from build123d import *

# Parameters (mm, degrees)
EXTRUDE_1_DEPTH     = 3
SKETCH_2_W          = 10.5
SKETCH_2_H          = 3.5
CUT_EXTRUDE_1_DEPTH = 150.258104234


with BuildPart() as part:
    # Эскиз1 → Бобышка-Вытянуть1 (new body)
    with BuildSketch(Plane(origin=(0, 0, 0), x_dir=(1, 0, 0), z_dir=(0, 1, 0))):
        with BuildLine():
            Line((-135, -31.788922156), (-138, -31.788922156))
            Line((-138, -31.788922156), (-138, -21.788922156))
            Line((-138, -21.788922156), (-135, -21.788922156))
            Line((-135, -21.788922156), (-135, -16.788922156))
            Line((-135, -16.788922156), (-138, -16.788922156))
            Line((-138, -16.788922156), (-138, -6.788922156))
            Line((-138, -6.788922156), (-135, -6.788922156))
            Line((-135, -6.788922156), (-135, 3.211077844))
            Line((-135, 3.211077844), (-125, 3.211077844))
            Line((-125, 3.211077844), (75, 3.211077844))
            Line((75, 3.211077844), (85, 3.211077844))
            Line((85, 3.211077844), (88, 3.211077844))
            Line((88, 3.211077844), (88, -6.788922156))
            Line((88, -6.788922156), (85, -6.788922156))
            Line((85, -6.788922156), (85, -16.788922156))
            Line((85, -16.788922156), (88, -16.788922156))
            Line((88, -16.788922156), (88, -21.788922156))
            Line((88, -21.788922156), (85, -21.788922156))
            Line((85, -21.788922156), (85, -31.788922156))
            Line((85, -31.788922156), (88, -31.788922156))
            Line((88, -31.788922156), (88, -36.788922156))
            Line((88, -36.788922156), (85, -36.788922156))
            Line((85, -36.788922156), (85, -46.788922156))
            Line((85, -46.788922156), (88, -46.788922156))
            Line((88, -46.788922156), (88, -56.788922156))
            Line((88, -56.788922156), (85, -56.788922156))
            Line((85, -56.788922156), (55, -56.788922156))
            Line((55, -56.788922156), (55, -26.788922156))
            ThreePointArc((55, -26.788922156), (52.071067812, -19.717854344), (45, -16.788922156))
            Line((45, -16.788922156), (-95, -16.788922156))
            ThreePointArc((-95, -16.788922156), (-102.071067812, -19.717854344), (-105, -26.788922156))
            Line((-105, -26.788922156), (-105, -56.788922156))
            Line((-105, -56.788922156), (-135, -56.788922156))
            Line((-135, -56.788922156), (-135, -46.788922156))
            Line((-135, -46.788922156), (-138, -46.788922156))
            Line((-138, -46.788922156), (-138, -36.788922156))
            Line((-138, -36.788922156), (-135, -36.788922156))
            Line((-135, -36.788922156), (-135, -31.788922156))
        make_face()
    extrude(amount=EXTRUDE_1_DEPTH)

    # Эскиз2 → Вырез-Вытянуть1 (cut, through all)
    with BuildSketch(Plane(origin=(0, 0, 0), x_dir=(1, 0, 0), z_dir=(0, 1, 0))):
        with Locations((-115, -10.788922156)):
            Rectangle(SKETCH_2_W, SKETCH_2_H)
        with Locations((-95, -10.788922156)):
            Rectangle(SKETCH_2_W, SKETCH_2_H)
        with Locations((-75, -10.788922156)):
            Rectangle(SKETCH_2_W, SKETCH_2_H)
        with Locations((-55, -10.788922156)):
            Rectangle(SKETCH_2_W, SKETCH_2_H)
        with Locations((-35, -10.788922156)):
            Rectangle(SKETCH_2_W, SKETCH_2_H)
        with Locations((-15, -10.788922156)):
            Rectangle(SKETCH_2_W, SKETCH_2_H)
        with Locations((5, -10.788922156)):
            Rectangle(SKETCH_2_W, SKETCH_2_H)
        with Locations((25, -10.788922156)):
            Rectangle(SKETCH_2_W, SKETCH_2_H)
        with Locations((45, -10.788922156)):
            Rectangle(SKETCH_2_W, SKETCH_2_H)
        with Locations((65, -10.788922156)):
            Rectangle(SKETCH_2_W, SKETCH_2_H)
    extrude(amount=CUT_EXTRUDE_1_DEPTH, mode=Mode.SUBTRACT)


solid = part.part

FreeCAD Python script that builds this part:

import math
import FreeCAD as App
import Part
import Sketcher

V = App.Vector

doc = App.newDocument("Part")
body = doc.addObject("PartDesign::Body", "Body")

# Sketch on XZ plane
sketch1 = body.newObject("Sketcher::SketchObject", "Sketch")
sketch1.AttachmentSupport = (doc.getObject("XZ_Plane"), [""])
sketch1.MapMode = "FlatFace"
sketch1.addGeometry(Part.LineSegment(V(-138, 31.8, 0), V(-135, 31.8, 0)), False)
sketch1.addGeometry(Part.LineSegment(V(-135, 31.8, 0), V(-135, 36.8, 0)), False)
sketch1.addGeometry(Part.LineSegment(V(-135, 36.8, 0), V(-138, 36.8, 0)), False)
sketch1.addGeometry(Part.LineSegment(V(-138, 36.8, 0), V(-138, 46.8, 0)), False)
sketch1.addGeometry(Part.LineSegment(V(-138, 46.8, 0), V(-135, 46.8, 0)), False)
sketch1.addGeometry(Part.LineSegment(V(-135, 46.8, 0), V(-135, 56.8, 0)), False)
sketch1.addGeometry(Part.LineSegment(V(-135, 56.8, 0), V(-105, 56.8, 0)), False)
sketch1.addGeometry(Part.LineSegment(V(-105, 56.8, 0), V(-105, 26.8, 0)), False)
sketch1.addGeometry(Part.ArcOfCircle(Part.Circle(V(-95, 26.8, 0), V(0, 0, 1), 10), math.radians(180), math.radians(270)), False)
sketch1.addGeometry(Part.LineSegment(V(-95, 16.8, 0), V(45, 16.8, 0)), False)
sketch1.addGeometry(Part.ArcOfCircle(Part.Circle(V(45, 26.8, 0), V(0, 0, 1), 10), math.radians(-90), math.radians(0)), False)
sketch1.addGeometry(Part.LineSegment(V(55, 26.8, 0), V(55, 56.8, 0)), False)
sketch1.addGeometry(Part.LineSegment(V(55, 56.8, 0), V(88, 56.8, 0)), False)
sketch1.addGeometry(Part.LineSegment(V(88, 56.8, 0), V(88, 46.8, 0)), False)
sketch1.addGeometry(Part.LineSegment(V(88, 46.8, 0), V(85, 46.8, 0)), False)
sketch1.addGeometry(Part.LineSegment(V(85, 46.8, 0), V(85, 36.8, 0)), False)
sketch1.addGeometry(Part.LineSegment(V(85, 36.8, 0), V(88, 36.8, 0)), False)
sketch1.addGeometry(Part.LineSegment(V(88, 36.8, 0), V(88, 31.8, 0)), False)
sketch1.addGeometry(Part.LineSegment(V(88, 31.8, 0), V(85, 31.8, 0)), False)
sketch1.addGeometry(Part.LineSegment(V(85, 31.8, 0), V(85, 21.8, 0)), False)
sketch1.addGeometry(Part.LineSegment(V(85, 21.8, 0), V(88, 21.8, 0)), False)
sketch1.addGeometry(Part.LineSegment(V(88, 21.8, 0), V(88, 16.8, 0)), False)
sketch1.addGeometry(Part.LineSegment(V(88, 16.8, 0), V(85, 16.8, 0)), False)
sketch1.addGeometry(Part.LineSegment(V(85, 16.8, 0), V(85, 6.8, 0)), False)
sketch1.addGeometry(Part.LineSegment(V(85, 6.8, 0), V(88, 6.8, 0)), False)
sketch1.addGeometry(Part.LineSegment(V(88, 6.8, 0), V(88, -3.2, 0)), False)
sketch1.addGeometry(Part.LineSegment(V(88, -3.2, 0), V(-135, -3.2, 0)), False)
sketch1.addGeometry(Part.LineSegment(V(-135, -3.2, 0), V(-135, 6.8, 0)), False)
sketch1.addGeometry(Part.LineSegment(V(-135, 6.8, 0), V(-138, 6.8, 0)), False)
sketch1.addGeometry(Part.LineSegment(V(-138, 6.8, 0), V(-138, 16.8, 0)), False)
sketch1.addGeometry(Part.LineSegment(V(-138, 16.8, 0), V(-135, 16.8, 0)), False)
sketch1.addGeometry(Part.LineSegment(V(-135, 16.8, 0), V(-135, 21.8, 0)), False)
sketch1.addGeometry(Part.LineSegment(V(-135, 21.8, 0), V(-138, 21.8, 0)), False)
sketch1.addGeometry(Part.LineSegment(V(-138, 21.8, 0), V(-138, 31.8, 0)), False)
sketch1.addConstraint(Sketcher.Constraint("Coincident", 0, 2, 1, 1))
sketch1.addConstraint(Sketcher.Constraint("Coincident", 1, 2, 2, 1))
sketch1.addConstraint(Sketcher.Constraint("Coincident", 2, 2, 3, 1))
sketch1.addConstraint(Sketcher.Constraint("Coincident", 3, 2, 4, 1))
sketch1.addConstraint(Sketcher.Constraint("Coincident", 4, 2, 5, 1))
sketch1.addConstraint(Sketcher.Constraint("Coincident", 5, 2, 6, 1))
sketch1.addConstraint(Sketcher.Constraint("Coincident", 6, 2, 7, 1))
sketch1.addConstraint(Sketcher.Constraint("Tangent", 7, 2, 8, 1))
sketch1.addConstraint(Sketcher.Constraint("Tangent", 8, 2, 9, 1))
sketch1.addConstraint(Sketcher.Constraint("Tangent", 9, 2, 10, 1))
sketch1.addConstraint(Sketcher.Constraint("Tangent", 10, 2, 11, 1))
sketch1.addConstraint(Sketcher.Constraint("Coincident", 11, 2, 12, 1))
sketch1.addConstraint(Sketcher.Constraint("Coincident", 12, 2, 13, 1))
sketch1.addConstraint(Sketcher.Constraint("Coincident", 13, 2, 14, 1))
sketch1.addConstraint(Sketcher.Constraint("Coincident", 14, 2, 15, 1))
sketch1.addConstraint(Sketcher.Constraint("Coincident", 15, 2, 16, 1))
sketch1.addConstraint(Sketcher.Constraint("Coincident", 16, 2, 17, 1))
sketch1.addConstraint(Sketcher.Constraint("Coincident", 17, 2, 18, 1))
sketch1.addConstraint(Sketcher.Constraint("Coincident", 18, 2, 19, 1))
sketch1.addConstraint(Sketcher.Constraint("Coincident", 19, 2, 20, 1))
sketch1.addConstraint(Sketcher.Constraint("Coincident", 20, 2, 21, 1))
sketch1.addConstraint(Sketcher.Constraint("Coincident", 21, 2, 22, 1))
sketch1.addConstraint(Sketcher.Constraint("Coincident", 22, 2, 23, 1))
sketch1.addConstraint(Sketcher.Constraint("Coincident", 23, 2, 24, 1))
sketch1.addConstraint(Sketcher.Constraint("Coincident", 24, 2, 25, 1))
sketch1.addConstraint(Sketcher.Constraint("Coincident", 25, 2, 26, 1))
sketch1.addConstraint(Sketcher.Constraint("Coincident", 26, 2, 27, 1))
sketch1.addConstraint(Sketcher.Constraint("Coincident", 27, 2, 28, 1))
sketch1.addConstraint(Sketcher.Constraint("Coincident", 28, 2, 29, 1))
sketch1.addConstraint(Sketcher.Constraint("Coincident", 29, 2, 30, 1))
sketch1.addConstraint(Sketcher.Constraint("Coincident", 30, 2, 31, 1))
sketch1.addConstraint(Sketcher.Constraint("Coincident", 31, 2, 32, 1))
sketch1.addConstraint(Sketcher.Constraint("Coincident", 32, 2, 33, 1))
sketch1.addConstraint(Sketcher.Constraint("Coincident", 33, 2, 0, 1))
sketch1.addConstraint(Sketcher.Constraint("Horizontal", 0))
sketch1.addConstraint(Sketcher.Constraint("Vertical", 1))
sketch1.addConstraint(Sketcher.Constraint("Horizontal", 2))
sketch1.addConstraint(Sketcher.Constraint("Vertical", 3))
sketch1.addConstraint(Sketcher.Constraint("Horizontal", 4))
sketch1.addConstraint(Sketcher.Constraint("Vertical", 5))
sketch1.addConstraint(Sketcher.Constraint("Horizontal", 6))
sketch1.addConstraint(Sketcher.Constraint("Vertical", 7))
sketch1.addConstraint(Sketcher.Constraint("Horizontal", 9))
sketch1.addConstraint(Sketcher.Constraint("Vertical", 11))
sketch1.addConstraint(Sketcher.Constraint("Horizontal", 12))
sketch1.addConstraint(Sketcher.Constraint("Vertical", 13))
sketch1.addConstraint(Sketcher.Constraint("Horizontal", 14))
sketch1.addConstraint(Sketcher.Constraint("Vertical", 15))
sketch1.addConstraint(Sketcher.Constraint("Horizontal", 16))
sketch1.addConstraint(Sketcher.Constraint("Vertical", 17))
sketch1.addConstraint(Sketcher.Constraint("Horizontal", 18))
sketch1.addConstraint(Sketcher.Constraint("Vertical", 19))
sketch1.addConstraint(Sketcher.Constraint("Horizontal", 20))
sketch1.addConstraint(Sketcher.Constraint("Vertical", 21))
sketch1.addConstraint(Sketcher.Constraint("Horizontal", 22))
sketch1.addConstraint(Sketcher.Constraint("Vertical", 23))
sketch1.addConstraint(Sketcher.Constraint("Horizontal", 24))
sketch1.addConstraint(Sketcher.Constraint("Vertical", 25))
sketch1.addConstraint(Sketcher.Constraint("Horizontal", 26))
sketch1.addConstraint(Sketcher.Constraint("Vertical", 27))
sketch1.addConstraint(Sketcher.Constraint("Horizontal", 28))
sketch1.addConstraint(Sketcher.Constraint("Vertical", 29))
sketch1.addConstraint(Sketcher.Constraint("Horizontal", 30))
sketch1.addConstraint(Sketcher.Constraint("Vertical", 31))
sketch1.addConstraint(Sketcher.Constraint("Horizontal", 32))
sketch1.addConstraint(Sketcher.Constraint("Vertical", 33))
sketch1.addConstraint(Sketcher.Constraint("Equal", 8, 10))
sketch1.addConstraint(Sketcher.Constraint("Horizontal", 6, 2, 11, 2))
sketch1.addConstraint(Sketcher.Constraint("Horizontal", 4, 2, 13, 2))
sketch1.addConstraint(Sketcher.Constraint("Horizontal", 2, 2, 15, 2))
sketch1.addConstraint(Sketcher.Constraint("Horizontal", 0, 2, 17, 2))
sketch1.addConstraint(Sketcher.Constraint("Horizontal", 9, 2, 21, 2))
sketch1.addConstraint(Sketcher.Constraint("Horizontal", 24, 2, 27, 2))
sketch1.addConstraint(Sketcher.Constraint("Horizontal", 22, 2, 29, 2))
sketch1.addConstraint(Sketcher.Constraint("Horizontal", 20, 2, 31, 2))
sketch1.addConstraint(Sketcher.Constraint("Vertical", 1, 2, 4, 2))
sketch1.addConstraint(Sketcher.Constraint("Vertical", 13, 2, 16, 2))
sketch1.addConstraint(Sketcher.Constraint("Vertical", 15, 2, 18, 2))
sketch1.addConstraint(Sketcher.Constraint("Vertical", 17, 2, 20, 2))
sketch1.addConstraint(Sketcher.Constraint("Vertical", 19, 2, 22, 2))
sketch1.addConstraint(Sketcher.Constraint("Vertical", 21, 2, 24, 2))
sketch1.addConstraint(Sketcher.Constraint("Vertical", 5, 2, 26, 2))
sketch1.addConstraint(Sketcher.Constraint("Vertical", 3, 2, 28, 2))
sketch1.addConstraint(Sketcher.Constraint("Vertical", 27, 2, 30, 2))
sketch1.addConstraint(Sketcher.Constraint("Vertical", 29, 2, 32, 2))
sketch1.addConstraint(Sketcher.Constraint("Equal", 4, 14))
sketch1.addConstraint(Sketcher.Constraint("Equal", 3, 5))
sketch1.addConstraint(Sketcher.Constraint("Equal", 6, 7))
sketch1.addConstraint(Sketcher.Constraint("Equal", 15, 19))
sketch1.addConstraint(Sketcher.Constraint("Equal", 17, 21))
sketch1.addConstraint(Sketcher.Constraint("Equal", 19, 23))
sketch1.addConstraint(Sketcher.Constraint("Equal", 23, 25))
sketch1.addConstraint(Sketcher.Constraint("Radius", 8, 10.0))
sketch1.addConstraint(Sketcher.Constraint("DistanceX", 0, 1, 0, 2, 3.0))
sketch1.addConstraint(Sketcher.Constraint("DistanceX", 6, 1, 6, 2, 30.0))
sketch1.addConstraint(Sketcher.Constraint("DistanceX", 9, 1, 9, 2, 140.0))
sketch1.addConstraint(Sketcher.Constraint("DistanceX", 12, 1, 12, 2, 33.0))
sketch1.addConstraint(Sketcher.Constraint("DistanceY", 1, 1, 1, 2, 5.0))
sketch1.addConstraint(Sketcher.Constraint("DistanceX", 8, 3, -1, 1, 95.0))
sketch1.addConstraint(Sketcher.Constraint("DistanceY", -1, 1, 8, 3, 26.788922))
pad1 = body.newObject("PartDesign::Pad", "Pad")
pad1.Profile = sketch1
pad1.Length = 3
pad1.Reversed = True

# Sketch on XZ plane
sketch2 = body.newObject("Sketcher::SketchObject", "Sketch001")
sketch2.AttachmentSupport = (doc.getObject("XZ_Plane"), [""])
sketch2.MapMode = "FlatFace"
sketch2.addGeometry(Part.LineSegment(V(-120.2, 9, 0), V(-120.2, 12.5, 0)), False)
sketch2.addGeometry(Part.LineSegment(V(-120.2, 12.5, 0), V(-109.8, 12.5, 0)), False)
sketch2.addGeometry(Part.LineSegment(V(-109.8, 12.5, 0), V(-109.8, 9, 0)), False)
sketch2.addGeometry(Part.LineSegment(V(-109.8, 9, 0), V(-120.2, 9, 0)), False)
sketch2.addGeometry(Part.LineSegment(V(-100.2, 9, 0), V(-100.2, 12.5, 0)), False)
sketch2.addGeometry(Part.LineSegment(V(-100.2, 12.5, 0), V(-89.8, 12.5, 0)), False)
sketch2.addGeometry(Part.LineSegment(V(-89.8, 12.5, 0), V(-89.8, 9, 0)), False)
sketch2.addGeometry(Part.LineSegment(V(-89.8, 9, 0), V(-100.2, 9, 0)), False)
sketch2.addGeometry(Part.LineSegment(V(-80.2, 9, 0), V(-80.2, 12.5, 0)), False)
sketch2.addGeometry(Part.LineSegment(V(-80.2, 12.5, 0), V(-69.8, 12.5, 0)), False)
sketch2.addGeometry(Part.LineSegment(V(-69.8, 12.5, 0), V(-69.8, 9, 0)), False)
sketch2.addGeometry(Part.LineSegment(V(-69.8, 9, 0), V(-80.2, 9, 0)), False)
sketch2.addGeometry(Part.LineSegment(V(-60.2, 9, 0), V(-60.2, 12.5, 0)), False)
sketch2.addGeometry(Part.LineSegment(V(-60.2, 12.5, 0), V(-49.8, 12.5, 0)), False)
sketch2.addGeometry(Part.LineSegment(V(-49.8, 12.5, 0), V(-49.8, 9, 0)), False)
sketch2.addGeometry(Part.LineSegment(V(-49.8, 9, 0), V(-60.2, 9, 0)), False)
sketch2.addGeometry(Part.LineSegment(V(-40.2, 9, 0), V(-40.2, 12.5, 0)), False)
sketch2.addGeometry(Part.LineSegment(V(-40.2, 12.5, 0), V(-29.8, 12.5, 0)), False)
sketch2.addGeometry(Part.LineSegment(V(-29.8, 12.5, 0), V(-29.8, 9, 0)), False)
sketch2.addGeometry(Part.LineSegment(V(-29.8, 9, 0), V(-40.2, 9, 0)), False)
sketch2.addGeometry(Part.LineSegment(V(-20.2, 9, 0), V(-20.2, 12.5, 0)), False)
sketch2.addGeometry(Part.LineSegment(V(-20.2, 12.5, 0), V(-9.8, 12.5, 0)), False)
sketch2.addGeometry(Part.LineSegment(V(-9.8, 12.5, 0), V(-9.8, 9, 0)), False)
sketch2.addGeometry(Part.LineSegment(V(-9.8, 9, 0), V(-20.2, 9, 0)), False)
sketch2.addGeometry(Part.LineSegment(V(-0.2, 9, 0), V(-0.2, 12.5, 0)), False)
sketch2.addGeometry(Part.LineSegment(V(-0.2, 12.5, 0), V(10.2, 12.5, 0)), False)
sketch2.addGeometry(Part.LineSegment(V(10.2, 12.5, 0), V(10.2, 9, 0)), False)
sketch2.addGeometry(Part.LineSegment(V(10.2, 9, 0), V(-0.2, 9, 0)), False)
sketch2.addGeometry(Part.LineSegment(V(19.8, 9, 0), V(19.8, 12.5, 0)), False)
sketch2.addGeometry(Part.LineSegment(V(19.8, 12.5, 0), V(30.2, 12.5, 0)), False)
sketch2.addGeometry(Part.LineSegment(V(30.2, 12.5, 0), V(30.2, 9, 0)), False)
sketch2.addGeometry(Part.LineSegment(V(30.2, 9, 0), V(19.8, 9, 0)), False)
sketch2.addGeometry(Part.LineSegment(V(39.8, 9, 0), V(39.8, 12.5, 0)), False)
sketch2.addGeometry(Part.LineSegment(V(39.8, 12.5, 0), V(50.2, 12.5, 0)), False)
sketch2.addGeometry(Part.LineSegment(V(50.2, 12.5, 0), V(50.2, 9, 0)), False)
sketch2.addGeometry(Part.LineSegment(V(50.2, 9, 0), V(39.8, 9, 0)), False)
sketch2.addGeometry(Part.LineSegment(V(59.8, 9, 0), V(59.8, 12.5, 0)), False)
sketch2.addGeometry(Part.LineSegment(V(59.8, 12.5, 0), V(70.2, 12.5, 0)), False)
sketch2.addGeometry(Part.LineSegment(V(70.2, 12.5, 0), V(70.2, 9, 0)), False)
sketch2.addGeometry(Part.LineSegment(V(70.2, 9, 0), V(59.8, 9, 0)), False)
sketch2.addConstraint(Sketcher.Constraint("Coincident", 0, 2, 1, 1))
sketch2.addConstraint(Sketcher.Constraint("Coincident", 1, 2, 2, 1))
sketch2.addConstraint(Sketcher.Constraint("Coincident", 2, 2, 3, 1))
sketch2.addConstraint(Sketcher.Constraint("Coincident", 3, 2, 0, 1))
sketch2.addConstraint(Sketcher.Constraint("Coincident", 4, 2, 5, 1))
sketch2.addConstraint(Sketcher.Constraint("Coincident", 5, 2, 6, 1))
sketch2.addConstraint(Sketcher.Constraint("Coincident", 6, 2, 7, 1))
sketch2.addConstraint(Sketcher.Constraint("Coincident", 7, 2, 4, 1))
sketch2.addConstraint(Sketcher.Constraint("Coincident", 8, 2, 9, 1))
sketch2.addConstraint(Sketcher.Constraint("Coincident", 9, 2, 10, 1))
sketch2.addConstraint(Sketcher.Constraint("Coincident", 10, 2, 11, 1))
sketch2.addConstraint(Sketcher.Constraint("Coincident", 11, 2, 8, 1))
sketch2.addConstraint(Sketcher.Constraint("Coincident", 12, 2, 13, 1))
sketch2.addConstraint(Sketcher.Constraint("Coincident", 13, 2, 14, 1))
sketch2.addConstraint(Sketcher.Constraint("Coincident", 14, 2, 15, 1))
sketch2.addConstraint(Sketcher.Constraint("Coincident", 15, 2, 12, 1))
sketch2.addConstraint(Sketcher.Constraint("Coincident", 16, 2, 17, 1))
sketch2.addConstraint(Sketcher.Constraint("Coincident", 17, 2, 18, 1))
sketch2.addConstraint(Sketcher.Constraint("Coincident", 18, 2, 19, 1))
sketch2.addConstraint(Sketcher.Constraint("Coincident", 19, 2, 16, 1))
sketch2.addConstraint(Sketcher.Constraint("Coincident", 20, 2, 21, 1))
sketch2.addConstraint(Sketcher.Constraint("Coincident", 21, 2, 22, 1))
sketch2.addConstraint(Sketcher.Constraint("Coincident", 22, 2, 23, 1))
sketch2.addConstraint(Sketcher.Constraint("Coincident", 23, 2, 20, 1))
sketch2.addConstraint(Sketcher.Constraint("Coincident", 24, 2, 25, 1))
sketch2.addConstraint(Sketcher.Constraint("Coincident", 25, 2, 26, 1))
sketch2.addConstraint(Sketcher.Constraint("Coincident", 26, 2, 27, 1))
sketch2.addConstraint(Sketcher.Constraint("Coincident", 27, 2, 24, 1))
sketch2.addConstraint(Sketcher.Constraint("Coincident", 28, 2, 29, 1))
sketch2.addConstraint(Sketcher.Constraint("Coincident", 29, 2, 30, 1))
sketch2.addConstraint(Sketcher.Constraint("Coincident", 30, 2, 31, 1))
sketch2.addConstraint(Sketcher.Constraint("Coincident", 31, 2, 28, 1))
sketch2.addConstraint(Sketcher.Constraint("Coincident", 32, 2, 33, 1))
sketch2.addConstraint(Sketcher.Constraint("Coincident", 33, 2, 34, 1))
sketch2.addConstraint(Sketcher.Constraint("Coincident", 34, 2, 35, 1))
sketch2.addConstraint(Sketcher.Constraint("Coincident", 35, 2, 32, 1))
sketch2.addConstraint(Sketcher.Constraint("Coincident", 36, 2, 37, 1))
sketch2.addConstraint(Sketcher.Constraint("Coincident", 37, 2, 38, 1))
sketch2.addConstraint(Sketcher.Constraint("Coincident", 38, 2, 39, 1))
sketch2.addConstraint(Sketcher.Constraint("Coincident", 39, 2, 36, 1))
sketch2.addConstraint(Sketcher.Constraint("Vertical", 0))
sketch2.addConstraint(Sketcher.Constraint("Horizontal", 1))
sketch2.addConstraint(Sketcher.Constraint("Vertical", 2))
sketch2.addConstraint(Sketcher.Constraint("Horizontal", 3))
sketch2.addConstraint(Sketcher.Constraint("Vertical", 4))
sketch2.addConstraint(Sketcher.Constraint("Horizontal", 5))
sketch2.addConstraint(Sketcher.Constraint("Vertical", 6))
sketch2.addConstraint(Sketcher.Constraint("Horizontal", 7))
sketch2.addConstraint(Sketcher.Constraint("Vertical", 8))
sketch2.addConstraint(Sketcher.Constraint("Horizontal", 9))
sketch2.addConstraint(Sketcher.Constraint("Vertical", 10))
sketch2.addConstraint(Sketcher.Constraint("Horizontal", 11))
sketch2.addConstraint(Sketcher.Constraint("Vertical", 12))
sketch2.addConstraint(Sketcher.Constraint("Horizontal", 13))
sketch2.addConstraint(Sketcher.Constraint("Vertical", 14))
sketch2.addConstraint(Sketcher.Constraint("Horizontal", 15))
sketch2.addConstraint(Sketcher.Constraint("Vertical", 16))
sketch2.addConstraint(Sketcher.Constraint("Horizontal", 17))
sketch2.addConstraint(Sketcher.Constraint("Vertical", 18))
sketch2.addConstraint(Sketcher.Constraint("Horizontal", 19))
sketch2.addConstraint(Sketcher.Constraint("Vertical", 20))
sketch2.addConstraint(Sketcher.Constraint("Horizontal", 21))
sketch2.addConstraint(Sketcher.Constraint("Vertical", 22))
sketch2.addConstraint(Sketcher.Constraint("Horizontal", 23))
sketch2.addConstraint(Sketcher.Constraint("Vertical", 24))
sketch2.addConstraint(Sketcher.Constraint("Horizontal", 25))
sketch2.addConstraint(Sketcher.Constraint("Vertical", 26))
sketch2.addConstraint(Sketcher.Constraint("Horizontal", 27))
sketch2.addConstraint(Sketcher.Constraint("Vertical", 28))
sketch2.addConstraint(Sketcher.Constraint("Horizontal", 29))
sketch2.addConstraint(Sketcher.Constraint("Vertical", 30))
sketch2.addConstraint(Sketcher.Constraint("Horizontal", 31))
sketch2.addConstraint(Sketcher.Constraint("Vertical", 32))
sketch2.addConstraint(Sketcher.Constraint("Horizontal", 33))
sketch2.addConstraint(Sketcher.Constraint("Vertical", 34))
sketch2.addConstraint(Sketcher.Constraint("Horizontal", 35))
sketch2.addConstraint(Sketcher.Constraint("Vertical", 36))
sketch2.addConstraint(Sketcher.Constraint("Horizontal", 37))
sketch2.addConstraint(Sketcher.Constraint("Vertical", 38))
sketch2.addConstraint(Sketcher.Constraint("Horizontal", 39))
sketch2.addConstraint(Sketcher.Constraint("Horizontal", 1, 2, 4, 2))
sketch2.addConstraint(Sketcher.Constraint("Horizontal", 3, 2, 6, 2))
sketch2.addConstraint(Sketcher.Constraint("Horizontal", 5, 2, 8, 2))
sketch2.addConstraint(Sketcher.Constraint("Horizontal", 7, 2, 10, 2))
sketch2.addConstraint(Sketcher.Constraint("Horizontal", 9, 2, 12, 2))
sketch2.addConstraint(Sketcher.Constraint("Horizontal", 11, 2, 14, 2))
sketch2.addConstraint(Sketcher.Constraint("Horizontal", 13, 2, 16, 2))
sketch2.addConstraint(Sketcher.Constraint("Horizontal", 15, 2, 18, 2))
sketch2.addConstraint(Sketcher.Constraint("Horizontal", 17, 2, 20, 2))
sketch2.addConstraint(Sketcher.Constraint("Horizontal", 19, 2, 22, 2))
sketch2.addConstraint(Sketcher.Constraint("Horizontal", 21, 2, 24, 2))
sketch2.addConstraint(Sketcher.Constraint("Horizontal", 23, 2, 26, 2))
sketch2.addConstraint(Sketcher.Constraint("Horizontal", 25, 2, 28, 2))
sketch2.addConstraint(Sketcher.Constraint("Horizontal", 27, 2, 30, 2))
sketch2.addConstraint(Sketcher.Constraint("Horizontal", 29, 2, 32, 2))
sketch2.addConstraint(Sketcher.Constraint("Horizontal", 31, 2, 34, 2))
sketch2.addConstraint(Sketcher.Constraint("Horizontal", 33, 2, 36, 2))
sketch2.addConstraint(Sketcher.Constraint("Horizontal", 35, 2, 38, 2))
sketch2.addConstraint(Sketcher.Constraint("Equal", 3, 5))
sketch2.addConstraint(Sketcher.Constraint("Equal", 7, 9))
sketch2.addConstraint(Sketcher.Constraint("Equal", 11, 13))
sketch2.addConstraint(Sketcher.Constraint("Equal", 15, 17))
sketch2.addConstraint(Sketcher.Constraint("Equal", 19, 21))
sketch2.addConstraint(Sketcher.Constraint("Equal", 23, 25))
sketch2.addConstraint(Sketcher.Constraint("Equal", 27, 29))
sketch2.addConstraint(Sketcher.Constraint("Equal", 31, 33))
sketch2.addConstraint(Sketcher.Constraint("Equal", 35, 37))
sketch2.addConstraint(Sketcher.Constraint("DistanceX", 1, 1, 1, 2, 10.5))
sketch2.addConstraint(Sketcher.Constraint("DistanceY", 0, 1, 0, 2, 3.5))
sketch2.addConstraint(Sketcher.Constraint("DistanceX", 0, 2, 4, 2, 20.0))
sketch2.addConstraint(Sketcher.Constraint("DistanceX", 4, 2, 8, 2, 20.0))
sketch2.addConstraint(Sketcher.Constraint("DistanceX", 8, 2, 12, 2, 20.0))
sketch2.addConstraint(Sketcher.Constraint("DistanceX", 12, 2, 16, 2, 20.0))
sketch2.addConstraint(Sketcher.Constraint("DistanceX", 16, 2, 20, 2, 20.0))
sketch2.addConstraint(Sketcher.Constraint("DistanceX", 20, 2, 24, 2, 20.0))
sketch2.addConstraint(Sketcher.Constraint("DistanceX", 24, 2, 28, 2, 20.0))
sketch2.addConstraint(Sketcher.Constraint("DistanceX", 28, 2, 32, 2, 20.0))
sketch2.addConstraint(Sketcher.Constraint("DistanceX", 32, 2, 36, 2, 20.0))
sketch2.addConstraint(Sketcher.Constraint("DistanceX", 0, 2, -1, 1, 120.25))
sketch2.addConstraint(Sketcher.Constraint("DistanceY", -1, 1, 0, 2, 12.538922))
pocket1 = body.newObject("PartDesign::Pocket", "Pocket")
pocket1.Profile = sketch2
pocket1.Type = "ThroughAll"

doc.recompute()
